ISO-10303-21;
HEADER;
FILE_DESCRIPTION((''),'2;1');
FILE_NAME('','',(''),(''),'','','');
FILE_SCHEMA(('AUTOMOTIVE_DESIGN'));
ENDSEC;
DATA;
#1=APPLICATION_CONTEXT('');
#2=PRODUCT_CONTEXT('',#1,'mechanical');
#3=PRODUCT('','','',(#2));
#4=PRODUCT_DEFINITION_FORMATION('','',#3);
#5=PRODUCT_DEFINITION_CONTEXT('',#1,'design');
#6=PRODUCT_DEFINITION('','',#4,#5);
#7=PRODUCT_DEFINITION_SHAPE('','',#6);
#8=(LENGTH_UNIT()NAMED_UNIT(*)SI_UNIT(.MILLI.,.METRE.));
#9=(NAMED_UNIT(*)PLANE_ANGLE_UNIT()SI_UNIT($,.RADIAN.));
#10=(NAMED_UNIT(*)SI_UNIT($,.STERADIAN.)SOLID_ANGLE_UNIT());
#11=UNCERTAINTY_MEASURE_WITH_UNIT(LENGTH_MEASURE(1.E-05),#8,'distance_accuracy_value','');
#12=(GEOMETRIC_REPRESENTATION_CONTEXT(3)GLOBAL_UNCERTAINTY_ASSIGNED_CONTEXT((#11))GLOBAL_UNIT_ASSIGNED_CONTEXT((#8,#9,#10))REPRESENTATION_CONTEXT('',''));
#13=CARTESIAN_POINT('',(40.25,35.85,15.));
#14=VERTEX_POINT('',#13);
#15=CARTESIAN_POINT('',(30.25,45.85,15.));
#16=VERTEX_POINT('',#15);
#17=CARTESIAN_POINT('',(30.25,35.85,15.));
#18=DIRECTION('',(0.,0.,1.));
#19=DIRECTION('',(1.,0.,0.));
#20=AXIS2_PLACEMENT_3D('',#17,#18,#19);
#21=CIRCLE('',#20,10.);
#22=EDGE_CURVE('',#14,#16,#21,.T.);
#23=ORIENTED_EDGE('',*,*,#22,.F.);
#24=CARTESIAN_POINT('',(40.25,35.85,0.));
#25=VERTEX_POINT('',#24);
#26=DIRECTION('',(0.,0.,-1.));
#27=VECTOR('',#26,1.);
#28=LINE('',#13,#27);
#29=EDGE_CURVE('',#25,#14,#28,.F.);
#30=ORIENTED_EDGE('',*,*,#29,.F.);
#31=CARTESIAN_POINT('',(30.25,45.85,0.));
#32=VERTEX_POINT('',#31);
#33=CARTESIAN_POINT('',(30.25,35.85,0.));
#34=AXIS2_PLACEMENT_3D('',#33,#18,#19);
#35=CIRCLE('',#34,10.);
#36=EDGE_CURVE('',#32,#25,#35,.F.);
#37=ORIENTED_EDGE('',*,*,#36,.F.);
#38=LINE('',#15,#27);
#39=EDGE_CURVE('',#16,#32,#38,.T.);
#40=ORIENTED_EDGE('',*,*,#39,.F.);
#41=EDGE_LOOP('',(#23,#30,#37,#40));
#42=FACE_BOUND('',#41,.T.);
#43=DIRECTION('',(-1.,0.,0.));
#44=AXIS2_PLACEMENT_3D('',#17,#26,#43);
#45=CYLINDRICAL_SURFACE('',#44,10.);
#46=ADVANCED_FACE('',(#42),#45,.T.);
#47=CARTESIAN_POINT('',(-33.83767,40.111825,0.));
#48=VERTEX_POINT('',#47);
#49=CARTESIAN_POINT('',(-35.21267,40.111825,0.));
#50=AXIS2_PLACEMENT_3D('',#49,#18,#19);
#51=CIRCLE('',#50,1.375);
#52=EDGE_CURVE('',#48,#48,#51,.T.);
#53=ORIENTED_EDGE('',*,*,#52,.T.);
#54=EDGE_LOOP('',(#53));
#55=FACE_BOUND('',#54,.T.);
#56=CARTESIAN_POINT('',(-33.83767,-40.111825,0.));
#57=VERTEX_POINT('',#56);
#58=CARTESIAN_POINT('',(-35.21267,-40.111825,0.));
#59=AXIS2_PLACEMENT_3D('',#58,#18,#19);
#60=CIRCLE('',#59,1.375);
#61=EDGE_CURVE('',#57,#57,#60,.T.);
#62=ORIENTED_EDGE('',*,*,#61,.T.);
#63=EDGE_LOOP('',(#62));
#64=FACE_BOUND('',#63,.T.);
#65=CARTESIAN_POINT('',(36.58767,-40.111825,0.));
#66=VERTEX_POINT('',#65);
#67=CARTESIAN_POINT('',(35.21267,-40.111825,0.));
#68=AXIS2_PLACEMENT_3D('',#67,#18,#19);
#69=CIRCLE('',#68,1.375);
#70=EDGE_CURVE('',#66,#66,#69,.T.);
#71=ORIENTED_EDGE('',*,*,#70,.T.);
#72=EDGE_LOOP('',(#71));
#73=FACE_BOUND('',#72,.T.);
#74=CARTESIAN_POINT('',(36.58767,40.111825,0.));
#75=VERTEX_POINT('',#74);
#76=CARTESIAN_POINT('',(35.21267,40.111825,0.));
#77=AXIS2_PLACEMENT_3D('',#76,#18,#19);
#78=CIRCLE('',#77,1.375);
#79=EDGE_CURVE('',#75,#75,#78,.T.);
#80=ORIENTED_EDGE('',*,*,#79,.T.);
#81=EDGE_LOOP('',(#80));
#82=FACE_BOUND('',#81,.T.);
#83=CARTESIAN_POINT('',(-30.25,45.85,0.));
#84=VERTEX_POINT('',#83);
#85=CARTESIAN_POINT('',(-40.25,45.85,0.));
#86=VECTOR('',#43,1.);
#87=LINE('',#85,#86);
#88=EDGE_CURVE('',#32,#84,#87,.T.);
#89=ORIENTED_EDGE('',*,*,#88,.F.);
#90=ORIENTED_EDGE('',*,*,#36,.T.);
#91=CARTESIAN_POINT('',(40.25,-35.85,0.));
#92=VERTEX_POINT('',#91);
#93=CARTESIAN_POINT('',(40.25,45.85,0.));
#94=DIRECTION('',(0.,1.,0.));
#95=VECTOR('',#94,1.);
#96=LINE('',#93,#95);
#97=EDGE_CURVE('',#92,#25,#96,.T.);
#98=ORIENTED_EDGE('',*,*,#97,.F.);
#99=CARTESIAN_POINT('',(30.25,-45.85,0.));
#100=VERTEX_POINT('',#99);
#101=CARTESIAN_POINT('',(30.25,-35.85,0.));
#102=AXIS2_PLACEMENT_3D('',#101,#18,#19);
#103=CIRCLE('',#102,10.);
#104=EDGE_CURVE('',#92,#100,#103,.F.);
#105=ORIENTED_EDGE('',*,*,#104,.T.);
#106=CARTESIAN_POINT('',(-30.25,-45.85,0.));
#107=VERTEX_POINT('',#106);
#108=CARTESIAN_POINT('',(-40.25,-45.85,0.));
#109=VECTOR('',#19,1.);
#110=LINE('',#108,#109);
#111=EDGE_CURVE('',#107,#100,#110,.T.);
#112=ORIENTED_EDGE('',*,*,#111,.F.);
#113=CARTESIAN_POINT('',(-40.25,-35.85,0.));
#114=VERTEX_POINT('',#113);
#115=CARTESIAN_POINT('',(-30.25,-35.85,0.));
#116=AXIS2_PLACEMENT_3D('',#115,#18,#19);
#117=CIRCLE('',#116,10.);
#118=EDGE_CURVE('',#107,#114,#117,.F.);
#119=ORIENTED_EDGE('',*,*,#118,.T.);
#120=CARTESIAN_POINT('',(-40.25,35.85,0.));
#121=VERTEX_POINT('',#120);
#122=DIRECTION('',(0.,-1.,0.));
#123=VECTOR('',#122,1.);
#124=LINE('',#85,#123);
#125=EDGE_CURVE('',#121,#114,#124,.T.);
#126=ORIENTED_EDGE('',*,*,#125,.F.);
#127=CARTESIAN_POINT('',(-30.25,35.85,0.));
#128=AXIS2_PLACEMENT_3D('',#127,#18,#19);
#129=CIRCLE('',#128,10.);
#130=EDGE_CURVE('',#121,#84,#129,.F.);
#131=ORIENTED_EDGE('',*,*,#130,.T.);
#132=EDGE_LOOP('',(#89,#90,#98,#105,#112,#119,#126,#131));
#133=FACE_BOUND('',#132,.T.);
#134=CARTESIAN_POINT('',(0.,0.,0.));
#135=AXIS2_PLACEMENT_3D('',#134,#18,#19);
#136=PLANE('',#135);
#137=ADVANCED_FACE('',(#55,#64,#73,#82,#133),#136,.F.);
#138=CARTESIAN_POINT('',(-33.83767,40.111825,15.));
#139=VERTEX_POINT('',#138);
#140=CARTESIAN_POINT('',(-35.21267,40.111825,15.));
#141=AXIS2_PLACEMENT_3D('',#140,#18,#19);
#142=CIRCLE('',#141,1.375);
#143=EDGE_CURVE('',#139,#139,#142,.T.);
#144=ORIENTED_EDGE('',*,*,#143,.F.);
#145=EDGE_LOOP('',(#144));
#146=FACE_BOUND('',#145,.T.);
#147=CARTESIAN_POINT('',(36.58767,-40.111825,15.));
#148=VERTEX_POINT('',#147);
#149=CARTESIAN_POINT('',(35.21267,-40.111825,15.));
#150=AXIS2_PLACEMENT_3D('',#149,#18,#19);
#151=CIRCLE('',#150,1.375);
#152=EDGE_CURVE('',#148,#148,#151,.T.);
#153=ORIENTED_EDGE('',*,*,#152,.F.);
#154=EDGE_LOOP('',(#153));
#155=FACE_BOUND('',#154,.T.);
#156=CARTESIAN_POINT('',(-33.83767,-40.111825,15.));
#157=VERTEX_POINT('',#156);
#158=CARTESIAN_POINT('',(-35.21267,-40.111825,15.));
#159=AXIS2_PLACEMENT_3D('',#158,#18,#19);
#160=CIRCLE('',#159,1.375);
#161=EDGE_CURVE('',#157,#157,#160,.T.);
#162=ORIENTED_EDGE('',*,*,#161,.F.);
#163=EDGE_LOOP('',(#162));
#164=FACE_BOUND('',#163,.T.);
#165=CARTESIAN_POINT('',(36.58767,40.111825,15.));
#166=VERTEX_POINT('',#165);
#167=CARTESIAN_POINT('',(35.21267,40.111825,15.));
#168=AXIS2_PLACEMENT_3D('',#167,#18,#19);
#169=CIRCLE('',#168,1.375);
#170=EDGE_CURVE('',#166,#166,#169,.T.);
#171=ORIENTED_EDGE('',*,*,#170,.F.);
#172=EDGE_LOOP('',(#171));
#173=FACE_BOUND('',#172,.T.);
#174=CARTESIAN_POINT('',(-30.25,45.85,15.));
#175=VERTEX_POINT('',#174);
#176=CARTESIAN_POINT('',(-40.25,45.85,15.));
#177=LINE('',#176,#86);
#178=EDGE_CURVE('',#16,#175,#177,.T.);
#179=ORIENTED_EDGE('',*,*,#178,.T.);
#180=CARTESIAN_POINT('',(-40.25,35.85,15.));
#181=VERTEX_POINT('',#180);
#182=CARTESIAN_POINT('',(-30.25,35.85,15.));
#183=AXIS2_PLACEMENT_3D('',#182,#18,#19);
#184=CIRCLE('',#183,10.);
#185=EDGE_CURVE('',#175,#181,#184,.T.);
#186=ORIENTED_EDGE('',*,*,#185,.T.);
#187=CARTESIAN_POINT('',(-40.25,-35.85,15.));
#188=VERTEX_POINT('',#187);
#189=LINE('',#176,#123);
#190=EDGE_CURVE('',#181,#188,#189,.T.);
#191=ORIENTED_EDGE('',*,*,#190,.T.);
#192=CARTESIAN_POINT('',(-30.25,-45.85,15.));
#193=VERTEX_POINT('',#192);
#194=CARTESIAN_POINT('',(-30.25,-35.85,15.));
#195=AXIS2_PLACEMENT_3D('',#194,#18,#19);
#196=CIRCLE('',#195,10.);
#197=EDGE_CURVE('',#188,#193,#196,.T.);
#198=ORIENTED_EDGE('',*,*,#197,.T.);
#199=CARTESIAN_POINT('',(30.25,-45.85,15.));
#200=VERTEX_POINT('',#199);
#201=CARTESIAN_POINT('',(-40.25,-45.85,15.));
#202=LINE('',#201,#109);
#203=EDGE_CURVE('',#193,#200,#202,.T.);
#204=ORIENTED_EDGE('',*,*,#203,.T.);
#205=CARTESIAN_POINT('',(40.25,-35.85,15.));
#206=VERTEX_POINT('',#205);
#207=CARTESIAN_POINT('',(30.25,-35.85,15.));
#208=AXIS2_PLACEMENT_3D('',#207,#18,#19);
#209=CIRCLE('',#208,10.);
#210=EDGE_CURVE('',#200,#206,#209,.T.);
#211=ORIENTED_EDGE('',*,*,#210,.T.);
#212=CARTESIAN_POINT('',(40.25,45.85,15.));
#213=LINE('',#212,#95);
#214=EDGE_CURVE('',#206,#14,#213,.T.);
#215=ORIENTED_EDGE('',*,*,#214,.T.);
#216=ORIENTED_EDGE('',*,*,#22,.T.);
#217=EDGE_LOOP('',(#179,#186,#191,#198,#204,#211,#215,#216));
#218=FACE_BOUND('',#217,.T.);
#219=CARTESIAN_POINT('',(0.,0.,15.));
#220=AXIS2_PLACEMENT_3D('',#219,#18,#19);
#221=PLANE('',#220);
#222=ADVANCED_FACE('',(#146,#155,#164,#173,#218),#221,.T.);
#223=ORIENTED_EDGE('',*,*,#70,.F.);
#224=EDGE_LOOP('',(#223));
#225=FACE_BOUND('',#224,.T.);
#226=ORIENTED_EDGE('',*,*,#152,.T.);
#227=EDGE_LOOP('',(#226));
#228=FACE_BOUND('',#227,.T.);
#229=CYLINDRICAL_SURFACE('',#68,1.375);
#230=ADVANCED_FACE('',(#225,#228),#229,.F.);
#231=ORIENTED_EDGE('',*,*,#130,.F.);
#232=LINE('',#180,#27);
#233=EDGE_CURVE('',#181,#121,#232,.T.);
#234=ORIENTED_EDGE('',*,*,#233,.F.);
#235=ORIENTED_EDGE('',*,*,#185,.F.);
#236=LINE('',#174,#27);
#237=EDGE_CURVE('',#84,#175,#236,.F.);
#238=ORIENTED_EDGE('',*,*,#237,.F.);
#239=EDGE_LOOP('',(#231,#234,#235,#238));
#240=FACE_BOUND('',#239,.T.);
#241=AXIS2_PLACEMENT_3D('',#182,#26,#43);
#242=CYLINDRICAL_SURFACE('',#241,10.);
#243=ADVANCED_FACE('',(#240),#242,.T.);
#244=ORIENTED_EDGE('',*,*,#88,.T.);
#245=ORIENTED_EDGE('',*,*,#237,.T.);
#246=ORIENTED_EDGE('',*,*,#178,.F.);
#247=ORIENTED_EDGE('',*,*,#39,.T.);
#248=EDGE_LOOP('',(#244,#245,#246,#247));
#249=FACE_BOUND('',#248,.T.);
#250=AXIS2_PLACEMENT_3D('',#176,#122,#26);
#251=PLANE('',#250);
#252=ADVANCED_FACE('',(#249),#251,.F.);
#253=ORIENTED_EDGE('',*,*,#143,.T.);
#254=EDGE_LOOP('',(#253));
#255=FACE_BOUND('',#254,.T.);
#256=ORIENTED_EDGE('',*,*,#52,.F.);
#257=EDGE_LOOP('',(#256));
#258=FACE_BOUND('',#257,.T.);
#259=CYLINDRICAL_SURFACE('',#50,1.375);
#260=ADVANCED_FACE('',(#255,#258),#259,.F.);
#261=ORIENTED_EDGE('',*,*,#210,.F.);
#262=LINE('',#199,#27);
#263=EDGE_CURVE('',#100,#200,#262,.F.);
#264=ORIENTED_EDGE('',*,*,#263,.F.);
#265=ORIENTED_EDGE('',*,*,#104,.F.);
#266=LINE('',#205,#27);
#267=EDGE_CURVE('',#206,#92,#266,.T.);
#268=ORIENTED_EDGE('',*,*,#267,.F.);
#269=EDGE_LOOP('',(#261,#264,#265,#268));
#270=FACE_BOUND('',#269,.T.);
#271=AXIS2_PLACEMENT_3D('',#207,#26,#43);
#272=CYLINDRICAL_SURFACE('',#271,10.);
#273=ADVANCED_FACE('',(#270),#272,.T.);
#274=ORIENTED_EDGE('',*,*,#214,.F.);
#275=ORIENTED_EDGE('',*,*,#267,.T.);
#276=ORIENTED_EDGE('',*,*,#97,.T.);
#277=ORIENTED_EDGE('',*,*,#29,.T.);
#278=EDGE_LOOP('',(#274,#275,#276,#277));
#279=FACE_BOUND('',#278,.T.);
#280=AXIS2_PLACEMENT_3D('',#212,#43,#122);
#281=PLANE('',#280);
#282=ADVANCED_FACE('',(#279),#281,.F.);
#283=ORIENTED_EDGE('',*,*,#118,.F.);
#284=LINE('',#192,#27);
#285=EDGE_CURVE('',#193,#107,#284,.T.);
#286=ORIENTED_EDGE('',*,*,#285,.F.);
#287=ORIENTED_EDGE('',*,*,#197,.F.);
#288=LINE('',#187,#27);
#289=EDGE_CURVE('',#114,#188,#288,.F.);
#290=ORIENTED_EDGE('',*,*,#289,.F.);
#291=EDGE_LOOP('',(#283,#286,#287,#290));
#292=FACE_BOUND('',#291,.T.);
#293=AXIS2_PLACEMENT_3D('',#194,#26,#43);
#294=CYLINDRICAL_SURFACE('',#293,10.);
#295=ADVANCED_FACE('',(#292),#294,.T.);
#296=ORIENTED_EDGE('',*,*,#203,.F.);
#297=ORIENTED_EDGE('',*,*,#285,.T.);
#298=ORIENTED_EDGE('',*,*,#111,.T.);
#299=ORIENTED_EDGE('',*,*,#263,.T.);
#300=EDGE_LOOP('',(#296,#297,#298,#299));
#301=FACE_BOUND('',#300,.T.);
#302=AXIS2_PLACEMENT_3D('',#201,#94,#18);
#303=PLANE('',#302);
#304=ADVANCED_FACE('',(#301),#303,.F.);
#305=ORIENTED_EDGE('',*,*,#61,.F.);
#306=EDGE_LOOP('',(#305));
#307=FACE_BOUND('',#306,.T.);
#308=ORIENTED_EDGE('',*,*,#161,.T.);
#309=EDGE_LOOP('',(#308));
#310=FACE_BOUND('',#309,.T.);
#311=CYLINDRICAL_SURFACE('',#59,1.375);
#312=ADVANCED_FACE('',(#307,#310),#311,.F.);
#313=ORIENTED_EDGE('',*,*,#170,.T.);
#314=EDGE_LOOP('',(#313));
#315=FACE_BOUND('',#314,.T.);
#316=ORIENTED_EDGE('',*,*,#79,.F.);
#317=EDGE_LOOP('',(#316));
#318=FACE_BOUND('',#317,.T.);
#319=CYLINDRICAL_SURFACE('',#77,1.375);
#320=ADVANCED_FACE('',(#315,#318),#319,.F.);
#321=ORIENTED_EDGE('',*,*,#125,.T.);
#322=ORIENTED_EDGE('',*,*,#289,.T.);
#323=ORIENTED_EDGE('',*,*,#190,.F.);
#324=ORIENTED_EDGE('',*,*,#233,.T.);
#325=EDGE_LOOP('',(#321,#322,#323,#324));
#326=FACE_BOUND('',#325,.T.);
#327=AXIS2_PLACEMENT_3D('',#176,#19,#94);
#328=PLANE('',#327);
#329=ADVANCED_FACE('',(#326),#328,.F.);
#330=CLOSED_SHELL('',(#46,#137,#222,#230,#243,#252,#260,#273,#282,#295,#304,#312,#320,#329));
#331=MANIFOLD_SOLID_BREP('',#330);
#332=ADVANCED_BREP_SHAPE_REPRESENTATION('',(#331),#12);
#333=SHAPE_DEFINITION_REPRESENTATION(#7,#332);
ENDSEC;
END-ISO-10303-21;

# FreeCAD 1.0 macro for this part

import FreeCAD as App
import Part
import Sketcher

V = App.Vector
Q = App.Units.Quantity


def edges_at(feature, points):
    """Names of the edges that pass closest to the given points."""
    edges = feature.Shape.Edges
    near = lambda p: min(range(len(edges)), key=lambda i: edges[i].distToShape(Part.Vertex(*p))[0])
    return sorted({f"Edge{near(p) + 1}" for p in points})


def add_polygon(sketch, points):
    """Adds a closed chain of lines whose ends are joined by coincident constraints."""
    first, n = sketch.GeometryCount, len(points)
    for a, b in zip(points, points[1:] + points[:1]):
        sketch.addGeometry(Part.LineSegment(App.Vector(*a, 0), App.Vector(*b, 0)), False)
    for i in range(n):
        sketch.addConstraint(Sketcher.Constraint("Coincident", first + i, 2, first + (i + 1) % n, 1))

doc = App.newDocument("Part")
body = doc.addObject("PartDesign::Body", "Body")

sketch1 = doc.addObject("Sketcher::SketchObject", "Sketch")
body.addObject(sketch1)
sketch1.AttachmentSupport = (doc.XY_Plane, [""])
sketch1.MapMode = "FlatFace"
add_polygon(sketch1, [(-40, 46), (-40, -46), (40, -46), (40, 46)])
sketch1.addConstraint(Sketcher.Constraint("Vertical", 0))
sketch1.addConstraint(Sketcher.Constraint("Horizontal", 1))
sketch1.addConstraint(Sketcher.Constraint("Vertical", 2))
sketch1.addConstraint(Sketcher.Constraint("Horizontal", 3))
sketch1.addConstraint(Sketcher.Constraint("Symmetric", 0, 2, 2, 2, -1, 1))
sketch1.addConstraint(Sketcher.Constraint("DistanceX", 1, 1, 1, 2, Q("80.5 mm")))
sketch1.addConstraint(Sketcher.Constraint("DistanceY", 0, 2, 0, 1, Q("91.7 mm")))
pad1 = doc.addObject("PartDesign::Pad", "Pad")
body.addObject(pad1)
pad1.Profile = sketch1
pad1.Length = 15
doc.recompute()

fillet = doc.addObject("PartDesign::Fillet", "Fillet")
body.addObject(fillet)
fillet.Base = (pad1, edges_at(pad1, [
    (40.25, -45.85, 7.5),
    (-40.25, -45.85, 7.5),
    (-40.25, 45.85, 7.5),
    (40.25, 45.85, 7.5),
]))
fillet.Radius = 10

sketch2 = doc.addObject("Sketcher::SketchObject", "Sketch001")
body.addObject(sketch2)
sketch2.AttachmentSupport = (doc.XY_Plane, [""])
sketch2.MapMode = "FlatFace"
sketch2.AttachmentOffset = App.Placement(V(0, 0, 15), App.Rotation())
sketch2.addGeometry(Part.Circle(V(-35.2, 40.1, 0), V(0, 0, 1), 1.4), False)
sketch2.addGeometry(Part.Circle(V(35.2, 40.1, 0), V(0, 0, 1), 1.4), False)
sketch2.addGeometry(Part.Circle(V(35.2, -40.1, 0), V(0, 0, 1), 1.4), False)
sketch2.addGeometry(Part.Circle(V(-35.2, -40.1, 0), V(0, 0, 1), 1.4), False)
sketch2.addConstraint(Sketcher.Constraint("Equal", 0, 1))
sketch2.addConstraint(Sketcher.Constraint("Equal", 1, 2))
sketch2.addConstraint(Sketcher.Constraint("Equal", 2, 3))
sketch2.addConstraint(Sketcher.Constraint("Symmetric", 0, 3, 2, 3, -1, 1))
sketch2.addConstraint(Sketcher.Constraint("Symmetric", 1, 3, 3, 3, -1, 1))
sketch2.addConstraint(Sketcher.Constraint("Symmetric", 0, 3, 1, 3, -2))
sketch2.addConstraint(Sketcher.Constraint("Diameter", 0, Q("2.75 mm")))
sketch2.addConstraint(Sketcher.Constraint("DistanceX", 0, 3, -1, 1, Q("35.21267 mm")))
sketch2.addConstraint(Sketcher.Constraint("DistanceY", 2, 3, 1, 3, Q("80.223649 mm")))
pocket1 = doc.addObject("PartDesign::Pocket", "Pocket")
body.addObject(pocket1)
pocket1.Profile = sketch2
pocket1.Type = "ThroughAll"

doc.recompute()
